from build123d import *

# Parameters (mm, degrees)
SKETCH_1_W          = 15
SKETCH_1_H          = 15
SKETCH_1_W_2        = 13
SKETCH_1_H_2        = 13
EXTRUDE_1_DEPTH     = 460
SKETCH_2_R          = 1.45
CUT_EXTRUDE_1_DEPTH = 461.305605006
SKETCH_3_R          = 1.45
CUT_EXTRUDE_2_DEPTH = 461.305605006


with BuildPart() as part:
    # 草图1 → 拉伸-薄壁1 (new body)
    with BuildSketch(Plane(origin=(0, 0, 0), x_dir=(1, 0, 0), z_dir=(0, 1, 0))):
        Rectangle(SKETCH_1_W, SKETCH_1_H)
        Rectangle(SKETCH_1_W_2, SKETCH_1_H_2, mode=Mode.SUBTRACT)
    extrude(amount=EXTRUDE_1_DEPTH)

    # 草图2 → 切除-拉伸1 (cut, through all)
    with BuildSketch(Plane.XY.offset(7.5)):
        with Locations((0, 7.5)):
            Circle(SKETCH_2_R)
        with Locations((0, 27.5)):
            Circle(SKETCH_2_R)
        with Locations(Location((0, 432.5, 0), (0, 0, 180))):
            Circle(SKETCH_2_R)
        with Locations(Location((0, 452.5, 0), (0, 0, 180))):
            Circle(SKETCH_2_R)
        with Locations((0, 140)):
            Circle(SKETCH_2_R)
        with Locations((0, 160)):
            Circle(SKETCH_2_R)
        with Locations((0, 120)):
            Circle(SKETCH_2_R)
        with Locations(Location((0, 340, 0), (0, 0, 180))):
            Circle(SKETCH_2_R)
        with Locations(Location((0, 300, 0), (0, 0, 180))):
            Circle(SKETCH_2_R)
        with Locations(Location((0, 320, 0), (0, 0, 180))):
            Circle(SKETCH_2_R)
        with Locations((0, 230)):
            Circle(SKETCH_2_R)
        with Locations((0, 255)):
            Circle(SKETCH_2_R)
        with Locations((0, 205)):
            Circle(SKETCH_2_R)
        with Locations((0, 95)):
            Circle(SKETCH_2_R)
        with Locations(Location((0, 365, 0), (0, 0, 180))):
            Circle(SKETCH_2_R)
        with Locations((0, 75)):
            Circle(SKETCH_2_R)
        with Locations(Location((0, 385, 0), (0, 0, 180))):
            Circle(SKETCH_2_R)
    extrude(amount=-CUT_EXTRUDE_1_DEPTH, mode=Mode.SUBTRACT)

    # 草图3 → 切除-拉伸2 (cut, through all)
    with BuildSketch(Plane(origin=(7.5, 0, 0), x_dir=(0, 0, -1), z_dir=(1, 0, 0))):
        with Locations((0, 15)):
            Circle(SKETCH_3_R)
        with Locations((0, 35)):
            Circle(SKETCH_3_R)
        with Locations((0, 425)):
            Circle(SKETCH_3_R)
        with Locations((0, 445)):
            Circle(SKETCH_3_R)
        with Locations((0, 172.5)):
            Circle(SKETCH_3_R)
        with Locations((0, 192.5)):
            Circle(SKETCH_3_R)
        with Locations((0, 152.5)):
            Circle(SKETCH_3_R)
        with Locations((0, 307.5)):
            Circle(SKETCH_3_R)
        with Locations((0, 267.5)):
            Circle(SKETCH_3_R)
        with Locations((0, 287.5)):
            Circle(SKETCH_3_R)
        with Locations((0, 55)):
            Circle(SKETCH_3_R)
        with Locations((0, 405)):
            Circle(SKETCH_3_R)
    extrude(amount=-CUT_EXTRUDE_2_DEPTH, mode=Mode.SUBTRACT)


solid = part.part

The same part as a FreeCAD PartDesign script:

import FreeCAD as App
import Part
import Sketcher


def add_polygon(sketch, points):
    """Adds a closed chain of lines whose ends are joined by coincident constraints."""
    first, n = sketch.GeometryCount, len(points)
    for a, b in zip(points, points[1:] + points[:1]):
        sketch.addGeometry(Part.LineSegment(App.Vector(*a, 0), App.Vector(*b, 0)), False)
    for i in range(n):
        sketch.addConstraint(Sketcher.Constraint("Coincident", first + i, 2, first + (i + 1) % n, 1))

doc = App.newDocument("Part")
body = doc.addObject("PartDesign::Body", "Body")

# Sketch on XZ plane
sketch1 = body.newObject("Sketcher::SketchObject", "Sketch")
sketch1.AttachmentSupport = (doc.getObject("XZ_Plane"), [""])
sketch1.MapMode = "FlatFace"
add_polygon(sketch1, [(-8, -8), (-8, 8), (8, 8), (8, -8)])  # lines 0-3
add_polygon(sketch1, [(6, 6), (-6, 6), (-6, -6), (6, -6)])  # lines 4-7
sketch1.addConstraint(Sketcher.Constraint("Vertical", 0))
sketch1.addConstraint(Sketcher.Constraint("Horizontal", 1))
sketch1.addConstraint(Sketcher.Constraint("Vertical", 2))
sketch1.addConstraint(Sketcher.Constraint("Horizontal", 3))
sketch1.addConstraint(Sketcher.Constraint("Horizontal", 4))
sketch1.addConstraint(Sketcher.Constraint("Vertical", 5))
sketch1.addConstraint(Sketcher.Constraint("Horizontal", 6))
sketch1.addConstraint(Sketcher.Constraint("Vertical", 7))
sketch1.addConstraint(Sketcher.Constraint("Symmetric", 0, 2, 2, 2, -1, 1))
sketch1.addConstraint(Sketcher.Constraint("Symmetric", 4, 2, 6, 2, -1, 1))
sketch1.addConstraint(Sketcher.Constraint("Equal", 3, 0))
sketch1.addConstraint(Sketcher.Constraint("Equal", 6, 5))
sketch1.addConstraint(Sketcher.Constraint("DistanceX", 1, 1, 1, 2, 15.0))
sketch1.addConstraint(Sketcher.Constraint("DistanceX", 4, 2, 4, 1, 13.0))
pad1 = body.newObject("PartDesign::Pad", "Pad")
pad1.Profile = sketch1
pad1.Length = 460
pad1.Reversed = True

# Sketch on XY plane
sketch2 = body.newObject("Sketcher::SketchObject", "Sketch001")
sketch2.AttachmentSupport = (doc.getObject("XY_Plane"), [""])
sketch2.MapMode = "FlatFace"
sketch2.AttachmentOffset = App.Placement(App.Vector(0, 0, 7.5), App.Rotation())
sketch2.addGeometry(Part.Circle(App.Vector(0, 7.5, 0), App.Vector(0, 0, 1), 1.4), False)
sketch2.addGeometry(Part.Circle(App.Vector(0, 27.5, 0), App.Vector(0, 0, 1), 1.4), False)
sketch2.addGeometry(Part.Circle(App.Vector(0, 432.5, 0), App.Vector(0, 0, 1), 1.4), False)
sketch2.addGeometry(Part.Circle(App.Vector(0, 452.5, 0), App.Vector(0, 0, 1), 1.4), False)
sketch2.addGeometry(Part.Circle(App.Vector(0, 140, 0), App.Vector(0, 0, 1), 1.4), False)
sketch2.addGeometry(Part.Circle(App.Vector(0, 160, 0), App.Vector(0, 0, 1), 1.4), False)
sketch2.addGeometry(Part.Circle(App.Vector(0, 120, 0), App.Vector(0, 0, 1), 1.4), False)
sketch2.addGeometry(Part.Circle(App.Vector(0, 340, 0), App.Vector(0, 0, 1), 1.4), False)
sketch2.addGeometry(Part.Circle(App.Vector(0, 300, 0), App.Vector(0, 0, 1), 1.4), False)
sketch2.addGeometry(Part.Circle(App.Vector(0, 320, 0), App.Vector(0, 0, 1), 1.4), False)
sketch2.addGeometry(Part.Circle(App.Vector(0, 230, 0), App.Vector(0, 0, 1), 1.4), False)
sketch2.addGeometry(Part.Circle(App.Vector(0, 255, 0), App.Vector(0, 0, 1), 1.4), False)
sketch2.addGeometry(Part.Circle(App.Vector(0, 205, 0), App.Vector(0, 0, 1), 1.4), False)
sketch2.addGeometry(Part.Circle(App.Vector(0, 95, 0), App.Vector(0, 0, 1), 1.4), False)
sketch2.addGeometry(Part.Circle(App.Vector(0, 365, 0), App.Vector(0, 0, 1), 1.4), False)
sketch2.addGeometry(Part.Circle(App.Vector(0, 75, 0), App.Vector(0, 0, 1), 1.4), False)
sketch2.addGeometry(Part.Circle(App.Vector(0, 385, 0), App.Vector(0, 0, 1), 1.4), False)
sketch2.addConstraint(Sketcher.Constraint("Equal", 0, 1))
sketch2.addConstraint(Sketcher.Constraint("Equal", 1, 2))
sketch2.addConstraint(Sketcher.Constraint("Equal", 2, 3))
sketch2.addConstraint(Sketcher.Constraint("Equal", 3, 4))
sketch2.addConstraint(Sketcher.Constraint("Equal", 4, 5))
sketch2.addConstraint(Sketcher.Constraint("Equal", 5, 6))
sketch2.addConstraint(Sketcher.Constraint("Equal", 6, 7))
sketch2.addConstraint(Sketcher.Constraint("Equal", 7, 8))
sketch2.addConstraint(Sketcher.Constraint("Equal", 8, 9))
sketch2.addConstraint(Sketcher.Constraint("Equal", 9, 10))
sketch2.addConstraint(Sketcher.Constraint("Equal", 10, 11))
sketch2.addConstraint(Sketcher.Constraint("Equal", 11, 12))
sketch2.addConstraint(Sketcher.Constraint("Equal", 12, 13))
sketch2.addConstraint(Sketcher.Constraint("Equal", 13, 14))
sketch2.addConstraint(Sketcher.Constraint("Equal", 14, 15))
sketch2.addConstraint(Sketcher.Constraint("Equal", 15, 16))
sketch2.addConstraint(Sketcher.Constraint("PointOnObject", 0, 3, -2))
sketch2.addConstraint(Sketcher.Constraint("PointOnObject", 1, 3, -2))
sketch2.addConstraint(Sketcher.Constraint("PointOnObject", 2, 3, -2))
sketch2.addConstraint(Sketcher.Constraint("PointOnObject", 3, 3, -2))
sketch2.addConstraint(Sketcher.Constraint("PointOnObject", 4, 3, -2))
sketch2.addConstraint(Sketcher.Constraint("PointOnObject", 5, 3, -2))
sketch2.addConstraint(Sketcher.Constraint("PointOnObject", 6, 3, -2))
sketch2.addConstraint(Sketcher.Constraint("PointOnObject", 7, 3, -2))
sketch2.addConstraint(Sketcher.Constraint("PointOnObject", 8, 3, -2))
sketch2.addConstraint(Sketcher.Constraint("PointOnObject", 9, 3, -2))
sketch2.addConstraint(Sketcher.Constraint("PointOnObject", 10, 3, -2))
sketch2.addConstraint(Sketcher.Constraint("PointOnObject", 11, 3, -2))
sketch2.addConstraint(Sketcher.Constraint("PointOnObject", 12, 3, -2))
sketch2.addConstraint(Sketcher.Constraint("PointOnObject", 13, 3, -2))
sketch2.addConstraint(Sketcher.Constraint("PointOnObject", 14, 3, -2))
sketch2.addConstraint(Sketcher.Constraint("PointOnObject", 15, 3, -2))
sketch2.addConstraint(Sketcher.Constraint("PointOnObject", 16, 3, -2))
sketch2.addConstraint(Sketcher.Constraint("Diameter", 0, 2.9))
sketch2.addConstraint(Sketcher.Constraint("DistanceY", -1, 1, 4, 3, 140.0))
sketch2.addConstraint(Sketcher.Constraint("DistanceY", -1, 1, 5, 3, 160.0))
sketch2.addConstraint(Sketcher.Constraint("DistanceY", -1, 1, 6, 3, 120.0))
sketch2.addConstraint(Sketcher.Constraint("DistanceY", -1, 1, 7, 3, 340.0))
sketch2.addConstraint(Sketcher.Constraint("DistanceY", -1, 1, 8, 3, 300.0))
sketch2.addConstraint(Sketcher.Constraint("DistanceY", -1, 1, 9, 3, 320.0))
sketch2.addConstraint(Sketcher.Constraint("DistanceY", -1, 1, 10, 3, 230.0))
sketch2.addConstraint(Sketcher.Constraint("DistanceY", -1, 1, 11, 3, 255.0))
sketch2.addConstraint(Sketcher.Constraint("DistanceY", -1, 1, 12, 3, 205.0))
sketch2.addConstraint(Sketcher.Constraint("DistanceY", -1, 1, 13, 3, 95.0))
sketch2.addConstraint(Sketcher.Constraint("DistanceY", -1, 1, 14, 3, 365.0))
sketch2.addConstraint(Sketcher.Constraint("DistanceY", -1, 1, 15, 3, 75.0))
sketch2.addConstraint(Sketcher.Constraint("DistanceY", -1, 1, 16, 3, 385.0))
sketch2.addConstraint(Sketcher.Constraint("DistanceY", 0, 3, 1, 3, 20.0))
sketch2.addConstraint(Sketcher.Constraint("DistanceY", 1, 3, 2, 3, 405.0))
sketch2.addConstraint(Sketcher.Constraint("DistanceY", 2, 3, 3, 3, 20.0))
sketch2.addConstraint(Sketcher.Constraint("DistanceY", -1, 1, 0, 3, 7.5))
pocket1 = body.newObject("PartDesign::Pocket", "Pocket")
pocket1.Profile = sketch2
pocket1.Type = "ThroughAll"

# Sketch on YZ plane
sketch3 = body.newObject("Sketcher::SketchObject", "Sketch002")
sketch3.AttachmentSupport = (doc.getObject("YZ_Plane"), [""])
sketch3.MapMode = "FlatFace"
sketch3.AttachmentOffset = App.Placement(App.Vector(0, 0, 7.5), App.Rotation())
sketch3.addGeometry(Part.Circle(App.Vector(15, 0, 0), App.Vector(0, 0, 1), 1.4), False)
sketch3.addGeometry(Part.Circle(App.Vector(35, 0, 0), App.Vector(0, 0, 1), 1.4), False)
sketch3.addGeometry(Part.Circle(App.Vector(425, 0, 0), App.Vector(0, 0, 1), 1.4), False)
sketch3.addGeometry(Part.Circle(App.Vector(445, 0, 0), App.Vector(0, 0, 1), 1.4), False)
sketch3.addGeometry(Part.Circle(App.Vector(172.5, 0, 0), App.Vector(0, 0, 1), 1.4), False)
sketch3.addGeometry(Part.Circle(App.Vector(192.5, 0, 0), App.Vector(0, 0, 1), 1.4), False)
sketch3.addGeometry(Part.Circle(App.Vector(152.5, 0, 0), App.Vector(0, 0, 1), 1.4), False)
sketch3.addGeometry(Part.Circle(App.Vector(307.5, 0, 0), App.Vector(0, 0, 1), 1.4), False)
sketch3.addGeometry(Part.Circle(App.Vector(267.5, 0, 0), App.Vector(0, 0, 1), 1.4), False)
sketch3.addGeometry(Part.Circle(App.Vector(287.5, 0, 0), App.Vector(0, 0, 1), 1.4), False)
sketch3.addGeometry(Part.Circle(App.Vector(55, 0, 0), App.Vector(0, 0, 1), 1.4), False)
sketch3.addGeometry(Part.Circle(App.Vector(405, 0, 0), App.Vector(0, 0, 1), 1.4), False)
sketch3.addConstraint(Sketcher.Constraint("Equal", 0, 1))
sketch3.addConstraint(Sketcher.Constraint("Equal", 1, 2))
sketch3.addConstraint(Sketcher.Constraint("Equal", 2, 3))
sketch3.addConstraint(Sketcher.Constraint("Equal", 3, 4))
sketch3.addConstraint(Sketcher.Constraint("Equal", 4, 5))
sketch3.addConstraint(Sketcher.Constraint("Equal", 5, 6))
sketch3.addConstraint(Sketcher.Constraint("Equal", 6, 7))
sketch3.addConstraint(Sketcher.Constraint("Equal", 7, 8))
sketch3.addConstraint(Sketcher.Constraint("Equal", 8, 9))
sketch3.addConstraint(Sketcher.Constraint("Equal", 9, 10))
sketch3.addConstraint(Sketcher.Constraint("Equal", 10, 11))
sketch3.addConstraint(Sketcher.Constraint("PointOnObject", 0, 3, -1))
sketch3.addConstraint(Sketcher.Constraint("PointOnObject", 1, 3, -1))
sketch3.addConstraint(Sketcher.Constraint("PointOnObject", 2, 3, -1))
sketch3.addConstraint(Sketcher.Constraint("PointOnObject", 3, 3, -1))
sketch3.addConstraint(Sketcher.Constraint("PointOnObject", 4, 3, -1))
sketch3.addConstraint(Sketcher.Constraint("PointOnObject", 5, 3, -1))
sketch3.addConstraint(Sketcher.Constraint("PointOnObject", 6, 3, -1))
sketch3.addConstraint(Sketcher.Constraint("PointOnObject", 7, 3, -1))
sketch3.addConstraint(Sketcher.Constraint("PointOnObject", 8, 3, -1))
sketch3.addConstraint(Sketcher.Constraint("PointOnObject", 9, 3, -1))
sketch3.addConstraint(Sketcher.Constraint("PointOnObject", 10, 3, -1))
sketch3.addConstraint(Sketcher.Constraint("PointOnObject", 11, 3, -1))
sketch3.addConstraint(Sketcher.Constraint("Diameter", 0, 2.9))
sketch3.addConstraint(Sketcher.Constraint("DistanceX", -1, 1, 0, 3, 15.0))
sketch3.addConstraint(Sketcher.Constraint("DistanceX", -1, 1, 1, 3, 35.0))
sketch3.addConstraint(Sketcher.Constraint("DistanceX", -1, 1, 2, 3, 425.0))
sketch3.addConstraint(Sketcher.Constraint("DistanceX", -1, 1, 3, 3, 445.0))
sketch3.addConstraint(Sketcher.Constraint("DistanceX", -1, 1, 10, 3, 55.0))
sketch3.addConstraint(Sketcher.Constraint("DistanceX", -1, 1, 11, 3, 405.0))
sketch3.addConstraint(Sketcher.Constraint("DistanceX", 4, 3, 5, 3, 20.0))
sketch3.addConstraint(Sketcher.Constraint("DistanceX", 6, 3, 4, 3, 20.0))
sketch3.addConstraint(Sketcher.Constraint("DistanceX", 5, 3, 7, 3, 115.0))
sketch3.addConstraint(Sketcher.Constraint("DistanceX", 8, 3, 7, 3, 40.0))
sketch3.addConstraint(Sketcher.Constraint("DistanceX", 9, 3, 7, 3, 20.0))
sketch3.addConstraint(Sketcher.Constraint("DistanceX", -1, 1, 4, 3, 172.5))
pocket2 = body.newObject("PartDesign::Pocket", "Pocket001")
pocket2.Profile = sketch3
pocket2.Type = "ThroughAll"

doc.recompute()
